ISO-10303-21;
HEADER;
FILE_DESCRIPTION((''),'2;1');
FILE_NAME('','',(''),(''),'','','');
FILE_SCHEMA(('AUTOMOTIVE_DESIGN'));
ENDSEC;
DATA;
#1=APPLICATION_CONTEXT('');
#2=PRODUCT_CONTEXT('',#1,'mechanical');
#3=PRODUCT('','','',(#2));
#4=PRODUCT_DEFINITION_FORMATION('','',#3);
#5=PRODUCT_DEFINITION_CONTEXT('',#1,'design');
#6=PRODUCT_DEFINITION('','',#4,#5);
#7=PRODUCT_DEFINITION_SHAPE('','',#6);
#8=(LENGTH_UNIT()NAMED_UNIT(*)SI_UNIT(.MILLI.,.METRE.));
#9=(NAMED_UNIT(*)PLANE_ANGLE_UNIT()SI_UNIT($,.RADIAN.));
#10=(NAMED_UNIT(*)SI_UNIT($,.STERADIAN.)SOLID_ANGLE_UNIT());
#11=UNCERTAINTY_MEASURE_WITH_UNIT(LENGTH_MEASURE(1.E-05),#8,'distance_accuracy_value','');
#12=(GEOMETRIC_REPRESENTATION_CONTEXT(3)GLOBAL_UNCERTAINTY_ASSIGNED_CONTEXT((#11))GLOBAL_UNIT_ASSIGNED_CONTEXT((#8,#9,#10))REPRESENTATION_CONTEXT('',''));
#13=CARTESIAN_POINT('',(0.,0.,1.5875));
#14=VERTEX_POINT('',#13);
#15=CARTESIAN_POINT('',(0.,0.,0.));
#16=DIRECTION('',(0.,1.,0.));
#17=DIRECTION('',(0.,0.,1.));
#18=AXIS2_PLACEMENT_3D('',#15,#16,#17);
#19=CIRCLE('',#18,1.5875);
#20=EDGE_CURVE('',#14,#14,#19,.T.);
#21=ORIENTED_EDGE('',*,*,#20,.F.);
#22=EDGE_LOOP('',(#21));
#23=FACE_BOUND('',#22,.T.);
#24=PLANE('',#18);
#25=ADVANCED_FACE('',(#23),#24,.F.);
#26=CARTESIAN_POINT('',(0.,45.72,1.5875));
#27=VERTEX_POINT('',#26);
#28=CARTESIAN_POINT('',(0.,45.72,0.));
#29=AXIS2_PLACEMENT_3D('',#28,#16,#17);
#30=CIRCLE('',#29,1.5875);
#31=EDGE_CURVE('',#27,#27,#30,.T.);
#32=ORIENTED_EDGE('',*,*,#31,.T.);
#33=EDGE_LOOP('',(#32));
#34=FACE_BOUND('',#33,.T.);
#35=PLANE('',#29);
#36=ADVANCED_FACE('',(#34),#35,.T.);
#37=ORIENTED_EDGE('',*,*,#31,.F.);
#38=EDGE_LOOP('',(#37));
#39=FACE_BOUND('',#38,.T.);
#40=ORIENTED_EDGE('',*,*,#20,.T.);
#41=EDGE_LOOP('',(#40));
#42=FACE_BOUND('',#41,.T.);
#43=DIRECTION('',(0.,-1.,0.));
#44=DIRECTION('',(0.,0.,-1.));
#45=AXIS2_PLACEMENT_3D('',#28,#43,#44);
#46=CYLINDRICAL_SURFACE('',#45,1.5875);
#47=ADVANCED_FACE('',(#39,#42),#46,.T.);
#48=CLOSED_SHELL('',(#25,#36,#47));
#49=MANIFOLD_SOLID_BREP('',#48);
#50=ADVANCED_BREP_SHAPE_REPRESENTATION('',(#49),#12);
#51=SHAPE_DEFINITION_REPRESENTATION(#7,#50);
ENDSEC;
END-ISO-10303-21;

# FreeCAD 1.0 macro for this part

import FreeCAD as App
import Part
import Sketcher

V = App.Vector
Q = App.Units.Quantity

doc = App.newDocument("Part")
body = doc.addObject("PartDesign::Body", "Body")

sketch1 = body.newObject("Sketcher::SketchObject", "Sketch")
sketch1.AttachmentSupport = (doc.getObject("XZ_Plane"), [""])
sketch1.MapMode = "FlatFace"
sketch1.addGeometry(Part.Circle(V(0, 0, 0), V(0, 0, 1), 1.5875), False)
sketch1.addConstraint([
    Sketcher.Constraint("Coincident", 0, 3, -1, 1),
    Sketcher.Constraint("Diameter", 0, Q("0.125 in")),
])
pad1 = body.newObject("PartDesign::Pad", "Pad")
pad1.Profile = sketch1
pad1.Length = Q("1.8 in")
pad1.Reversed = True

doc.recompute()
